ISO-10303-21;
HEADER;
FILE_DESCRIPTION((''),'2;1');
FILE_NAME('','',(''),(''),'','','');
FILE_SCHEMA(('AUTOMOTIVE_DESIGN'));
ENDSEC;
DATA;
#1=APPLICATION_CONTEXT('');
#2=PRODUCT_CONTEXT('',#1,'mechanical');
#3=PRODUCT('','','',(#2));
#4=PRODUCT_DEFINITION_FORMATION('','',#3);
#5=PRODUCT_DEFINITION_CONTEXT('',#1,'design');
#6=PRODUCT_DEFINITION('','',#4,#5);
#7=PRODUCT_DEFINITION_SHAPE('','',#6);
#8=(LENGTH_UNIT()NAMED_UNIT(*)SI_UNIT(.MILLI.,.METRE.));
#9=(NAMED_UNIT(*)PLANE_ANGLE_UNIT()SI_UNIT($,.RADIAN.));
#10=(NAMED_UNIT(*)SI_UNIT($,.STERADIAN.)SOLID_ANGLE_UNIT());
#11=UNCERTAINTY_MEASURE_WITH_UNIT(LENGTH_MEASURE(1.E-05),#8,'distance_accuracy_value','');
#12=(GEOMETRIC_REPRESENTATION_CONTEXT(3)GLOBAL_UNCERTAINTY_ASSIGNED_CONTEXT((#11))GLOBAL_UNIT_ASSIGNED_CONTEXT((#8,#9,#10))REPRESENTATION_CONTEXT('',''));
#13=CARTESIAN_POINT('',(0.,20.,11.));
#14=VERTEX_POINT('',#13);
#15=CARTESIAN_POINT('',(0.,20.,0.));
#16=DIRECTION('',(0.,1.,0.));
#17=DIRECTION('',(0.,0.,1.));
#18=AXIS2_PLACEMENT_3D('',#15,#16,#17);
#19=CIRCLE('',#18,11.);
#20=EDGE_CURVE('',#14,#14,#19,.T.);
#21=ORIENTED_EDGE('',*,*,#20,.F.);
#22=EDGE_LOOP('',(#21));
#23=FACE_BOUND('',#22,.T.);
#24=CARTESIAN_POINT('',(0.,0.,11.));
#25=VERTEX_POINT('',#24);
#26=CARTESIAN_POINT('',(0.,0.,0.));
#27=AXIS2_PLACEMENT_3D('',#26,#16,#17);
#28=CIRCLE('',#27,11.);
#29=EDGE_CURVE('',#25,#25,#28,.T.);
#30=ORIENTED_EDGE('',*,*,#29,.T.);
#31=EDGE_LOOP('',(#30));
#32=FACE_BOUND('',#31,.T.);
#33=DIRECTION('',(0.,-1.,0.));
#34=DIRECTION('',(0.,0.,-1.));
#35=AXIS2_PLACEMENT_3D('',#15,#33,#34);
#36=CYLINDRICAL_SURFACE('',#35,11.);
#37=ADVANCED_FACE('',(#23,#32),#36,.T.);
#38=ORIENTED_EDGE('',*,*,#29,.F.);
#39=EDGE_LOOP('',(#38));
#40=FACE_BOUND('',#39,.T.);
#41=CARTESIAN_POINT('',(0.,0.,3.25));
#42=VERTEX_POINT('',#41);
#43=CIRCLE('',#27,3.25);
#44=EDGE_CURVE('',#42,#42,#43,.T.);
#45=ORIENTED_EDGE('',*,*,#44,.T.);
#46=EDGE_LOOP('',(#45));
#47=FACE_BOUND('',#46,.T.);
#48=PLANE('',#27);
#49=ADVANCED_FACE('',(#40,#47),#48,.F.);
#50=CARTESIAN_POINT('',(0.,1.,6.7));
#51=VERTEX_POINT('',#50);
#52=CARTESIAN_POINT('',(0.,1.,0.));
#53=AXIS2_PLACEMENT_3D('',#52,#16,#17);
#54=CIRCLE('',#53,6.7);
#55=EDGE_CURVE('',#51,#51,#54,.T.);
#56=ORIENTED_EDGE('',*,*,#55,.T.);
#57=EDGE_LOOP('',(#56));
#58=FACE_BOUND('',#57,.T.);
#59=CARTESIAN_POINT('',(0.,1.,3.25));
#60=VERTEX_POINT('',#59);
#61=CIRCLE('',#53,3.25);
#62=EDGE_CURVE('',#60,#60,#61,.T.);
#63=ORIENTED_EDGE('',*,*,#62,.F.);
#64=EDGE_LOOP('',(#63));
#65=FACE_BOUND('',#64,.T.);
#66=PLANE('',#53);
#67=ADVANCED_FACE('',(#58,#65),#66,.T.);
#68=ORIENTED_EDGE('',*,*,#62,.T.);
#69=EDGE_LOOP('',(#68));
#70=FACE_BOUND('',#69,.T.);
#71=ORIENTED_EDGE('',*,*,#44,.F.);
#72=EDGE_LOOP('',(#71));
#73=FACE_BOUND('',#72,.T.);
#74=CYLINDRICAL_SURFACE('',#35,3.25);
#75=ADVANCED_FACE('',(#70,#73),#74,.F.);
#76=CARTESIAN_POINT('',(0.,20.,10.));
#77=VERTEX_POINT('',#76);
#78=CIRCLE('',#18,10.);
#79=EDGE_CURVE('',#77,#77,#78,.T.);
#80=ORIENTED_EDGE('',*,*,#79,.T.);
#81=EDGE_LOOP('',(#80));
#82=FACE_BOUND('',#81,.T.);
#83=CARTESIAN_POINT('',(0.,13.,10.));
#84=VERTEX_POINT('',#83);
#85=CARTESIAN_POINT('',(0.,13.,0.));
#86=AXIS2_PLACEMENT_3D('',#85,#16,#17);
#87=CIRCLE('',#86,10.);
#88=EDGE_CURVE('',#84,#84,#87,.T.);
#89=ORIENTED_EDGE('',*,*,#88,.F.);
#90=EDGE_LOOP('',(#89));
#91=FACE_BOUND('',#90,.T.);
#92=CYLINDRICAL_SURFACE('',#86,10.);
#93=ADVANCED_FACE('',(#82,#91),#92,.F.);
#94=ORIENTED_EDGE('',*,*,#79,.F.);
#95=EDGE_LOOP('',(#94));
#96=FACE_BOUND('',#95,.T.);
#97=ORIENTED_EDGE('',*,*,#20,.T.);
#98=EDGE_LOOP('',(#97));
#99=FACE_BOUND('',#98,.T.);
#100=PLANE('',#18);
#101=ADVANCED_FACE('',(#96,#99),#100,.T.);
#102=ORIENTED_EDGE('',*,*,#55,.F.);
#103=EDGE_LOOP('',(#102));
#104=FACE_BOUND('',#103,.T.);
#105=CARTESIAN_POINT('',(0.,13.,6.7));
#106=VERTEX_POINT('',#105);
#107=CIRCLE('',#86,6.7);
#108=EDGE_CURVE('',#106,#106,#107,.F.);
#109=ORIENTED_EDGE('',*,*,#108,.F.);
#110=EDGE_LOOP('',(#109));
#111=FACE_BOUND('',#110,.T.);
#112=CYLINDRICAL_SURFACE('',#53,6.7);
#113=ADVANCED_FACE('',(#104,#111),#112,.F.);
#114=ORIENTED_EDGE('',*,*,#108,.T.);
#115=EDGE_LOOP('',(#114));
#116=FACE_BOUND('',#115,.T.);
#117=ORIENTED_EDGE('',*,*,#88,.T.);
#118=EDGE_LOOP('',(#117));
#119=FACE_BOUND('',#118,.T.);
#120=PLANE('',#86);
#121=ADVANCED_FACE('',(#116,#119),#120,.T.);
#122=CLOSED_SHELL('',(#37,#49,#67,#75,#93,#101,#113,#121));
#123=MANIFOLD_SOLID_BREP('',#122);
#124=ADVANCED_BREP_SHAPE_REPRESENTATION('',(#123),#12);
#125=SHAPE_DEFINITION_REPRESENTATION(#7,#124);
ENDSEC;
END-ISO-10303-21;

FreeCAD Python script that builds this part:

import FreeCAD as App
import Part
import Sketcher
from FreeCAD import Vector

doc = App.newDocument("Part")
body = doc.addObject("PartDesign::Body", "Body")

# Sketch on XZ plane
sketch1 = body.newObject("Sketcher::SketchObject", "Sketch")
sketch1.AttachmentSupport = (doc.getObject("XZ_Plane"), [""])
sketch1.MapMode = "FlatFace"
sketch1.addGeometry(Part.Circle(Vector(0, 0, 0), Vector(0, 0, 1), 11), False)
sketch1.addConstraint([
    Sketcher.Constraint("Coincident", 0, 3, -1, 1),
    Sketcher.Constraint("Diameter", 0, 22.0),
])
pad1 = body.newObject("PartDesign::Pad", "Pad")
pad1.Profile = sketch1
pad1.Length = 20
pad1.Reversed = True

# Sketch on XZ plane
sketch2 = body.newObject("Sketcher::SketchObject", "Sketch001")
sketch2.AttachmentSupport = (doc.getObject("XZ_Plane"), [""])
sketch2.MapMode = "FlatFace"
sketch2.addGeometry(Part.Circle(Vector(0, 0, 0), Vector(0, 0, 1), 3.25), False)
sketch2.addConstraint([
    Sketcher.Constraint("Coincident", 0, 3, -1, 1),
    Sketcher.Constraint("Diameter", 0, 6.5),
])
pocket1 = body.newObject("PartDesign::Pocket", "Pocket")
pocket1.Profile = sketch2
pocket1.Length = 20

# Sketch on XZ plane
sketch3 = body.newObject("Sketcher::SketchObject", "Sketch002")
sketch3.AttachmentSupport = (doc.getObject("XZ_Plane"), [""])
sketch3.MapMode = "FlatFace"
sketch3.AttachmentOffset = App.Placement(Vector(0, 0, -20), App.Rotation())
sketch3.addGeometry(Part.Circle(Vector(0, 0, 0), Vector(0, 0, 1), 6.7), False)
sketch3.addConstraint([
    Sketcher.Constraint("Coincident", 0, 3, -1, 1),
    Sketcher.Constraint("Diameter", 0, 13.4),
])
pocket2 = body.newObject("PartDesign::Pocket", "Pocket001")
pocket2.Profile = sketch3
pocket2.Length = 19
pocket2.Reversed = True

# Sketch on XZ plane
sketch4 = body.newObject("Sketcher::SketchObject", "Sketch003")
sketch4.AttachmentSupport = (doc.getObject("XZ_Plane"), [""])
sketch4.MapMode = "FlatFace"
sketch4.AttachmentOffset = App.Placement(Vector(0, 0, -20), App.Rotation())
sketch4.addGeometry(Part.Circle(Vector(0, 0, 0), Vector(0, 0, 1), 10), False)
sketch4.addConstraint([
    Sketcher.Constraint("Coincident", 0, 3, -1, 1),
    Sketcher.Constraint("Diameter", 0, 20.0),
])
pocket3 = body.newObject("PartDesign::Pocket", "Pocket002")
pocket3.Profile = sketch4
pocket3.Length = 7
pocket3.Reversed = True

doc.recompute()
